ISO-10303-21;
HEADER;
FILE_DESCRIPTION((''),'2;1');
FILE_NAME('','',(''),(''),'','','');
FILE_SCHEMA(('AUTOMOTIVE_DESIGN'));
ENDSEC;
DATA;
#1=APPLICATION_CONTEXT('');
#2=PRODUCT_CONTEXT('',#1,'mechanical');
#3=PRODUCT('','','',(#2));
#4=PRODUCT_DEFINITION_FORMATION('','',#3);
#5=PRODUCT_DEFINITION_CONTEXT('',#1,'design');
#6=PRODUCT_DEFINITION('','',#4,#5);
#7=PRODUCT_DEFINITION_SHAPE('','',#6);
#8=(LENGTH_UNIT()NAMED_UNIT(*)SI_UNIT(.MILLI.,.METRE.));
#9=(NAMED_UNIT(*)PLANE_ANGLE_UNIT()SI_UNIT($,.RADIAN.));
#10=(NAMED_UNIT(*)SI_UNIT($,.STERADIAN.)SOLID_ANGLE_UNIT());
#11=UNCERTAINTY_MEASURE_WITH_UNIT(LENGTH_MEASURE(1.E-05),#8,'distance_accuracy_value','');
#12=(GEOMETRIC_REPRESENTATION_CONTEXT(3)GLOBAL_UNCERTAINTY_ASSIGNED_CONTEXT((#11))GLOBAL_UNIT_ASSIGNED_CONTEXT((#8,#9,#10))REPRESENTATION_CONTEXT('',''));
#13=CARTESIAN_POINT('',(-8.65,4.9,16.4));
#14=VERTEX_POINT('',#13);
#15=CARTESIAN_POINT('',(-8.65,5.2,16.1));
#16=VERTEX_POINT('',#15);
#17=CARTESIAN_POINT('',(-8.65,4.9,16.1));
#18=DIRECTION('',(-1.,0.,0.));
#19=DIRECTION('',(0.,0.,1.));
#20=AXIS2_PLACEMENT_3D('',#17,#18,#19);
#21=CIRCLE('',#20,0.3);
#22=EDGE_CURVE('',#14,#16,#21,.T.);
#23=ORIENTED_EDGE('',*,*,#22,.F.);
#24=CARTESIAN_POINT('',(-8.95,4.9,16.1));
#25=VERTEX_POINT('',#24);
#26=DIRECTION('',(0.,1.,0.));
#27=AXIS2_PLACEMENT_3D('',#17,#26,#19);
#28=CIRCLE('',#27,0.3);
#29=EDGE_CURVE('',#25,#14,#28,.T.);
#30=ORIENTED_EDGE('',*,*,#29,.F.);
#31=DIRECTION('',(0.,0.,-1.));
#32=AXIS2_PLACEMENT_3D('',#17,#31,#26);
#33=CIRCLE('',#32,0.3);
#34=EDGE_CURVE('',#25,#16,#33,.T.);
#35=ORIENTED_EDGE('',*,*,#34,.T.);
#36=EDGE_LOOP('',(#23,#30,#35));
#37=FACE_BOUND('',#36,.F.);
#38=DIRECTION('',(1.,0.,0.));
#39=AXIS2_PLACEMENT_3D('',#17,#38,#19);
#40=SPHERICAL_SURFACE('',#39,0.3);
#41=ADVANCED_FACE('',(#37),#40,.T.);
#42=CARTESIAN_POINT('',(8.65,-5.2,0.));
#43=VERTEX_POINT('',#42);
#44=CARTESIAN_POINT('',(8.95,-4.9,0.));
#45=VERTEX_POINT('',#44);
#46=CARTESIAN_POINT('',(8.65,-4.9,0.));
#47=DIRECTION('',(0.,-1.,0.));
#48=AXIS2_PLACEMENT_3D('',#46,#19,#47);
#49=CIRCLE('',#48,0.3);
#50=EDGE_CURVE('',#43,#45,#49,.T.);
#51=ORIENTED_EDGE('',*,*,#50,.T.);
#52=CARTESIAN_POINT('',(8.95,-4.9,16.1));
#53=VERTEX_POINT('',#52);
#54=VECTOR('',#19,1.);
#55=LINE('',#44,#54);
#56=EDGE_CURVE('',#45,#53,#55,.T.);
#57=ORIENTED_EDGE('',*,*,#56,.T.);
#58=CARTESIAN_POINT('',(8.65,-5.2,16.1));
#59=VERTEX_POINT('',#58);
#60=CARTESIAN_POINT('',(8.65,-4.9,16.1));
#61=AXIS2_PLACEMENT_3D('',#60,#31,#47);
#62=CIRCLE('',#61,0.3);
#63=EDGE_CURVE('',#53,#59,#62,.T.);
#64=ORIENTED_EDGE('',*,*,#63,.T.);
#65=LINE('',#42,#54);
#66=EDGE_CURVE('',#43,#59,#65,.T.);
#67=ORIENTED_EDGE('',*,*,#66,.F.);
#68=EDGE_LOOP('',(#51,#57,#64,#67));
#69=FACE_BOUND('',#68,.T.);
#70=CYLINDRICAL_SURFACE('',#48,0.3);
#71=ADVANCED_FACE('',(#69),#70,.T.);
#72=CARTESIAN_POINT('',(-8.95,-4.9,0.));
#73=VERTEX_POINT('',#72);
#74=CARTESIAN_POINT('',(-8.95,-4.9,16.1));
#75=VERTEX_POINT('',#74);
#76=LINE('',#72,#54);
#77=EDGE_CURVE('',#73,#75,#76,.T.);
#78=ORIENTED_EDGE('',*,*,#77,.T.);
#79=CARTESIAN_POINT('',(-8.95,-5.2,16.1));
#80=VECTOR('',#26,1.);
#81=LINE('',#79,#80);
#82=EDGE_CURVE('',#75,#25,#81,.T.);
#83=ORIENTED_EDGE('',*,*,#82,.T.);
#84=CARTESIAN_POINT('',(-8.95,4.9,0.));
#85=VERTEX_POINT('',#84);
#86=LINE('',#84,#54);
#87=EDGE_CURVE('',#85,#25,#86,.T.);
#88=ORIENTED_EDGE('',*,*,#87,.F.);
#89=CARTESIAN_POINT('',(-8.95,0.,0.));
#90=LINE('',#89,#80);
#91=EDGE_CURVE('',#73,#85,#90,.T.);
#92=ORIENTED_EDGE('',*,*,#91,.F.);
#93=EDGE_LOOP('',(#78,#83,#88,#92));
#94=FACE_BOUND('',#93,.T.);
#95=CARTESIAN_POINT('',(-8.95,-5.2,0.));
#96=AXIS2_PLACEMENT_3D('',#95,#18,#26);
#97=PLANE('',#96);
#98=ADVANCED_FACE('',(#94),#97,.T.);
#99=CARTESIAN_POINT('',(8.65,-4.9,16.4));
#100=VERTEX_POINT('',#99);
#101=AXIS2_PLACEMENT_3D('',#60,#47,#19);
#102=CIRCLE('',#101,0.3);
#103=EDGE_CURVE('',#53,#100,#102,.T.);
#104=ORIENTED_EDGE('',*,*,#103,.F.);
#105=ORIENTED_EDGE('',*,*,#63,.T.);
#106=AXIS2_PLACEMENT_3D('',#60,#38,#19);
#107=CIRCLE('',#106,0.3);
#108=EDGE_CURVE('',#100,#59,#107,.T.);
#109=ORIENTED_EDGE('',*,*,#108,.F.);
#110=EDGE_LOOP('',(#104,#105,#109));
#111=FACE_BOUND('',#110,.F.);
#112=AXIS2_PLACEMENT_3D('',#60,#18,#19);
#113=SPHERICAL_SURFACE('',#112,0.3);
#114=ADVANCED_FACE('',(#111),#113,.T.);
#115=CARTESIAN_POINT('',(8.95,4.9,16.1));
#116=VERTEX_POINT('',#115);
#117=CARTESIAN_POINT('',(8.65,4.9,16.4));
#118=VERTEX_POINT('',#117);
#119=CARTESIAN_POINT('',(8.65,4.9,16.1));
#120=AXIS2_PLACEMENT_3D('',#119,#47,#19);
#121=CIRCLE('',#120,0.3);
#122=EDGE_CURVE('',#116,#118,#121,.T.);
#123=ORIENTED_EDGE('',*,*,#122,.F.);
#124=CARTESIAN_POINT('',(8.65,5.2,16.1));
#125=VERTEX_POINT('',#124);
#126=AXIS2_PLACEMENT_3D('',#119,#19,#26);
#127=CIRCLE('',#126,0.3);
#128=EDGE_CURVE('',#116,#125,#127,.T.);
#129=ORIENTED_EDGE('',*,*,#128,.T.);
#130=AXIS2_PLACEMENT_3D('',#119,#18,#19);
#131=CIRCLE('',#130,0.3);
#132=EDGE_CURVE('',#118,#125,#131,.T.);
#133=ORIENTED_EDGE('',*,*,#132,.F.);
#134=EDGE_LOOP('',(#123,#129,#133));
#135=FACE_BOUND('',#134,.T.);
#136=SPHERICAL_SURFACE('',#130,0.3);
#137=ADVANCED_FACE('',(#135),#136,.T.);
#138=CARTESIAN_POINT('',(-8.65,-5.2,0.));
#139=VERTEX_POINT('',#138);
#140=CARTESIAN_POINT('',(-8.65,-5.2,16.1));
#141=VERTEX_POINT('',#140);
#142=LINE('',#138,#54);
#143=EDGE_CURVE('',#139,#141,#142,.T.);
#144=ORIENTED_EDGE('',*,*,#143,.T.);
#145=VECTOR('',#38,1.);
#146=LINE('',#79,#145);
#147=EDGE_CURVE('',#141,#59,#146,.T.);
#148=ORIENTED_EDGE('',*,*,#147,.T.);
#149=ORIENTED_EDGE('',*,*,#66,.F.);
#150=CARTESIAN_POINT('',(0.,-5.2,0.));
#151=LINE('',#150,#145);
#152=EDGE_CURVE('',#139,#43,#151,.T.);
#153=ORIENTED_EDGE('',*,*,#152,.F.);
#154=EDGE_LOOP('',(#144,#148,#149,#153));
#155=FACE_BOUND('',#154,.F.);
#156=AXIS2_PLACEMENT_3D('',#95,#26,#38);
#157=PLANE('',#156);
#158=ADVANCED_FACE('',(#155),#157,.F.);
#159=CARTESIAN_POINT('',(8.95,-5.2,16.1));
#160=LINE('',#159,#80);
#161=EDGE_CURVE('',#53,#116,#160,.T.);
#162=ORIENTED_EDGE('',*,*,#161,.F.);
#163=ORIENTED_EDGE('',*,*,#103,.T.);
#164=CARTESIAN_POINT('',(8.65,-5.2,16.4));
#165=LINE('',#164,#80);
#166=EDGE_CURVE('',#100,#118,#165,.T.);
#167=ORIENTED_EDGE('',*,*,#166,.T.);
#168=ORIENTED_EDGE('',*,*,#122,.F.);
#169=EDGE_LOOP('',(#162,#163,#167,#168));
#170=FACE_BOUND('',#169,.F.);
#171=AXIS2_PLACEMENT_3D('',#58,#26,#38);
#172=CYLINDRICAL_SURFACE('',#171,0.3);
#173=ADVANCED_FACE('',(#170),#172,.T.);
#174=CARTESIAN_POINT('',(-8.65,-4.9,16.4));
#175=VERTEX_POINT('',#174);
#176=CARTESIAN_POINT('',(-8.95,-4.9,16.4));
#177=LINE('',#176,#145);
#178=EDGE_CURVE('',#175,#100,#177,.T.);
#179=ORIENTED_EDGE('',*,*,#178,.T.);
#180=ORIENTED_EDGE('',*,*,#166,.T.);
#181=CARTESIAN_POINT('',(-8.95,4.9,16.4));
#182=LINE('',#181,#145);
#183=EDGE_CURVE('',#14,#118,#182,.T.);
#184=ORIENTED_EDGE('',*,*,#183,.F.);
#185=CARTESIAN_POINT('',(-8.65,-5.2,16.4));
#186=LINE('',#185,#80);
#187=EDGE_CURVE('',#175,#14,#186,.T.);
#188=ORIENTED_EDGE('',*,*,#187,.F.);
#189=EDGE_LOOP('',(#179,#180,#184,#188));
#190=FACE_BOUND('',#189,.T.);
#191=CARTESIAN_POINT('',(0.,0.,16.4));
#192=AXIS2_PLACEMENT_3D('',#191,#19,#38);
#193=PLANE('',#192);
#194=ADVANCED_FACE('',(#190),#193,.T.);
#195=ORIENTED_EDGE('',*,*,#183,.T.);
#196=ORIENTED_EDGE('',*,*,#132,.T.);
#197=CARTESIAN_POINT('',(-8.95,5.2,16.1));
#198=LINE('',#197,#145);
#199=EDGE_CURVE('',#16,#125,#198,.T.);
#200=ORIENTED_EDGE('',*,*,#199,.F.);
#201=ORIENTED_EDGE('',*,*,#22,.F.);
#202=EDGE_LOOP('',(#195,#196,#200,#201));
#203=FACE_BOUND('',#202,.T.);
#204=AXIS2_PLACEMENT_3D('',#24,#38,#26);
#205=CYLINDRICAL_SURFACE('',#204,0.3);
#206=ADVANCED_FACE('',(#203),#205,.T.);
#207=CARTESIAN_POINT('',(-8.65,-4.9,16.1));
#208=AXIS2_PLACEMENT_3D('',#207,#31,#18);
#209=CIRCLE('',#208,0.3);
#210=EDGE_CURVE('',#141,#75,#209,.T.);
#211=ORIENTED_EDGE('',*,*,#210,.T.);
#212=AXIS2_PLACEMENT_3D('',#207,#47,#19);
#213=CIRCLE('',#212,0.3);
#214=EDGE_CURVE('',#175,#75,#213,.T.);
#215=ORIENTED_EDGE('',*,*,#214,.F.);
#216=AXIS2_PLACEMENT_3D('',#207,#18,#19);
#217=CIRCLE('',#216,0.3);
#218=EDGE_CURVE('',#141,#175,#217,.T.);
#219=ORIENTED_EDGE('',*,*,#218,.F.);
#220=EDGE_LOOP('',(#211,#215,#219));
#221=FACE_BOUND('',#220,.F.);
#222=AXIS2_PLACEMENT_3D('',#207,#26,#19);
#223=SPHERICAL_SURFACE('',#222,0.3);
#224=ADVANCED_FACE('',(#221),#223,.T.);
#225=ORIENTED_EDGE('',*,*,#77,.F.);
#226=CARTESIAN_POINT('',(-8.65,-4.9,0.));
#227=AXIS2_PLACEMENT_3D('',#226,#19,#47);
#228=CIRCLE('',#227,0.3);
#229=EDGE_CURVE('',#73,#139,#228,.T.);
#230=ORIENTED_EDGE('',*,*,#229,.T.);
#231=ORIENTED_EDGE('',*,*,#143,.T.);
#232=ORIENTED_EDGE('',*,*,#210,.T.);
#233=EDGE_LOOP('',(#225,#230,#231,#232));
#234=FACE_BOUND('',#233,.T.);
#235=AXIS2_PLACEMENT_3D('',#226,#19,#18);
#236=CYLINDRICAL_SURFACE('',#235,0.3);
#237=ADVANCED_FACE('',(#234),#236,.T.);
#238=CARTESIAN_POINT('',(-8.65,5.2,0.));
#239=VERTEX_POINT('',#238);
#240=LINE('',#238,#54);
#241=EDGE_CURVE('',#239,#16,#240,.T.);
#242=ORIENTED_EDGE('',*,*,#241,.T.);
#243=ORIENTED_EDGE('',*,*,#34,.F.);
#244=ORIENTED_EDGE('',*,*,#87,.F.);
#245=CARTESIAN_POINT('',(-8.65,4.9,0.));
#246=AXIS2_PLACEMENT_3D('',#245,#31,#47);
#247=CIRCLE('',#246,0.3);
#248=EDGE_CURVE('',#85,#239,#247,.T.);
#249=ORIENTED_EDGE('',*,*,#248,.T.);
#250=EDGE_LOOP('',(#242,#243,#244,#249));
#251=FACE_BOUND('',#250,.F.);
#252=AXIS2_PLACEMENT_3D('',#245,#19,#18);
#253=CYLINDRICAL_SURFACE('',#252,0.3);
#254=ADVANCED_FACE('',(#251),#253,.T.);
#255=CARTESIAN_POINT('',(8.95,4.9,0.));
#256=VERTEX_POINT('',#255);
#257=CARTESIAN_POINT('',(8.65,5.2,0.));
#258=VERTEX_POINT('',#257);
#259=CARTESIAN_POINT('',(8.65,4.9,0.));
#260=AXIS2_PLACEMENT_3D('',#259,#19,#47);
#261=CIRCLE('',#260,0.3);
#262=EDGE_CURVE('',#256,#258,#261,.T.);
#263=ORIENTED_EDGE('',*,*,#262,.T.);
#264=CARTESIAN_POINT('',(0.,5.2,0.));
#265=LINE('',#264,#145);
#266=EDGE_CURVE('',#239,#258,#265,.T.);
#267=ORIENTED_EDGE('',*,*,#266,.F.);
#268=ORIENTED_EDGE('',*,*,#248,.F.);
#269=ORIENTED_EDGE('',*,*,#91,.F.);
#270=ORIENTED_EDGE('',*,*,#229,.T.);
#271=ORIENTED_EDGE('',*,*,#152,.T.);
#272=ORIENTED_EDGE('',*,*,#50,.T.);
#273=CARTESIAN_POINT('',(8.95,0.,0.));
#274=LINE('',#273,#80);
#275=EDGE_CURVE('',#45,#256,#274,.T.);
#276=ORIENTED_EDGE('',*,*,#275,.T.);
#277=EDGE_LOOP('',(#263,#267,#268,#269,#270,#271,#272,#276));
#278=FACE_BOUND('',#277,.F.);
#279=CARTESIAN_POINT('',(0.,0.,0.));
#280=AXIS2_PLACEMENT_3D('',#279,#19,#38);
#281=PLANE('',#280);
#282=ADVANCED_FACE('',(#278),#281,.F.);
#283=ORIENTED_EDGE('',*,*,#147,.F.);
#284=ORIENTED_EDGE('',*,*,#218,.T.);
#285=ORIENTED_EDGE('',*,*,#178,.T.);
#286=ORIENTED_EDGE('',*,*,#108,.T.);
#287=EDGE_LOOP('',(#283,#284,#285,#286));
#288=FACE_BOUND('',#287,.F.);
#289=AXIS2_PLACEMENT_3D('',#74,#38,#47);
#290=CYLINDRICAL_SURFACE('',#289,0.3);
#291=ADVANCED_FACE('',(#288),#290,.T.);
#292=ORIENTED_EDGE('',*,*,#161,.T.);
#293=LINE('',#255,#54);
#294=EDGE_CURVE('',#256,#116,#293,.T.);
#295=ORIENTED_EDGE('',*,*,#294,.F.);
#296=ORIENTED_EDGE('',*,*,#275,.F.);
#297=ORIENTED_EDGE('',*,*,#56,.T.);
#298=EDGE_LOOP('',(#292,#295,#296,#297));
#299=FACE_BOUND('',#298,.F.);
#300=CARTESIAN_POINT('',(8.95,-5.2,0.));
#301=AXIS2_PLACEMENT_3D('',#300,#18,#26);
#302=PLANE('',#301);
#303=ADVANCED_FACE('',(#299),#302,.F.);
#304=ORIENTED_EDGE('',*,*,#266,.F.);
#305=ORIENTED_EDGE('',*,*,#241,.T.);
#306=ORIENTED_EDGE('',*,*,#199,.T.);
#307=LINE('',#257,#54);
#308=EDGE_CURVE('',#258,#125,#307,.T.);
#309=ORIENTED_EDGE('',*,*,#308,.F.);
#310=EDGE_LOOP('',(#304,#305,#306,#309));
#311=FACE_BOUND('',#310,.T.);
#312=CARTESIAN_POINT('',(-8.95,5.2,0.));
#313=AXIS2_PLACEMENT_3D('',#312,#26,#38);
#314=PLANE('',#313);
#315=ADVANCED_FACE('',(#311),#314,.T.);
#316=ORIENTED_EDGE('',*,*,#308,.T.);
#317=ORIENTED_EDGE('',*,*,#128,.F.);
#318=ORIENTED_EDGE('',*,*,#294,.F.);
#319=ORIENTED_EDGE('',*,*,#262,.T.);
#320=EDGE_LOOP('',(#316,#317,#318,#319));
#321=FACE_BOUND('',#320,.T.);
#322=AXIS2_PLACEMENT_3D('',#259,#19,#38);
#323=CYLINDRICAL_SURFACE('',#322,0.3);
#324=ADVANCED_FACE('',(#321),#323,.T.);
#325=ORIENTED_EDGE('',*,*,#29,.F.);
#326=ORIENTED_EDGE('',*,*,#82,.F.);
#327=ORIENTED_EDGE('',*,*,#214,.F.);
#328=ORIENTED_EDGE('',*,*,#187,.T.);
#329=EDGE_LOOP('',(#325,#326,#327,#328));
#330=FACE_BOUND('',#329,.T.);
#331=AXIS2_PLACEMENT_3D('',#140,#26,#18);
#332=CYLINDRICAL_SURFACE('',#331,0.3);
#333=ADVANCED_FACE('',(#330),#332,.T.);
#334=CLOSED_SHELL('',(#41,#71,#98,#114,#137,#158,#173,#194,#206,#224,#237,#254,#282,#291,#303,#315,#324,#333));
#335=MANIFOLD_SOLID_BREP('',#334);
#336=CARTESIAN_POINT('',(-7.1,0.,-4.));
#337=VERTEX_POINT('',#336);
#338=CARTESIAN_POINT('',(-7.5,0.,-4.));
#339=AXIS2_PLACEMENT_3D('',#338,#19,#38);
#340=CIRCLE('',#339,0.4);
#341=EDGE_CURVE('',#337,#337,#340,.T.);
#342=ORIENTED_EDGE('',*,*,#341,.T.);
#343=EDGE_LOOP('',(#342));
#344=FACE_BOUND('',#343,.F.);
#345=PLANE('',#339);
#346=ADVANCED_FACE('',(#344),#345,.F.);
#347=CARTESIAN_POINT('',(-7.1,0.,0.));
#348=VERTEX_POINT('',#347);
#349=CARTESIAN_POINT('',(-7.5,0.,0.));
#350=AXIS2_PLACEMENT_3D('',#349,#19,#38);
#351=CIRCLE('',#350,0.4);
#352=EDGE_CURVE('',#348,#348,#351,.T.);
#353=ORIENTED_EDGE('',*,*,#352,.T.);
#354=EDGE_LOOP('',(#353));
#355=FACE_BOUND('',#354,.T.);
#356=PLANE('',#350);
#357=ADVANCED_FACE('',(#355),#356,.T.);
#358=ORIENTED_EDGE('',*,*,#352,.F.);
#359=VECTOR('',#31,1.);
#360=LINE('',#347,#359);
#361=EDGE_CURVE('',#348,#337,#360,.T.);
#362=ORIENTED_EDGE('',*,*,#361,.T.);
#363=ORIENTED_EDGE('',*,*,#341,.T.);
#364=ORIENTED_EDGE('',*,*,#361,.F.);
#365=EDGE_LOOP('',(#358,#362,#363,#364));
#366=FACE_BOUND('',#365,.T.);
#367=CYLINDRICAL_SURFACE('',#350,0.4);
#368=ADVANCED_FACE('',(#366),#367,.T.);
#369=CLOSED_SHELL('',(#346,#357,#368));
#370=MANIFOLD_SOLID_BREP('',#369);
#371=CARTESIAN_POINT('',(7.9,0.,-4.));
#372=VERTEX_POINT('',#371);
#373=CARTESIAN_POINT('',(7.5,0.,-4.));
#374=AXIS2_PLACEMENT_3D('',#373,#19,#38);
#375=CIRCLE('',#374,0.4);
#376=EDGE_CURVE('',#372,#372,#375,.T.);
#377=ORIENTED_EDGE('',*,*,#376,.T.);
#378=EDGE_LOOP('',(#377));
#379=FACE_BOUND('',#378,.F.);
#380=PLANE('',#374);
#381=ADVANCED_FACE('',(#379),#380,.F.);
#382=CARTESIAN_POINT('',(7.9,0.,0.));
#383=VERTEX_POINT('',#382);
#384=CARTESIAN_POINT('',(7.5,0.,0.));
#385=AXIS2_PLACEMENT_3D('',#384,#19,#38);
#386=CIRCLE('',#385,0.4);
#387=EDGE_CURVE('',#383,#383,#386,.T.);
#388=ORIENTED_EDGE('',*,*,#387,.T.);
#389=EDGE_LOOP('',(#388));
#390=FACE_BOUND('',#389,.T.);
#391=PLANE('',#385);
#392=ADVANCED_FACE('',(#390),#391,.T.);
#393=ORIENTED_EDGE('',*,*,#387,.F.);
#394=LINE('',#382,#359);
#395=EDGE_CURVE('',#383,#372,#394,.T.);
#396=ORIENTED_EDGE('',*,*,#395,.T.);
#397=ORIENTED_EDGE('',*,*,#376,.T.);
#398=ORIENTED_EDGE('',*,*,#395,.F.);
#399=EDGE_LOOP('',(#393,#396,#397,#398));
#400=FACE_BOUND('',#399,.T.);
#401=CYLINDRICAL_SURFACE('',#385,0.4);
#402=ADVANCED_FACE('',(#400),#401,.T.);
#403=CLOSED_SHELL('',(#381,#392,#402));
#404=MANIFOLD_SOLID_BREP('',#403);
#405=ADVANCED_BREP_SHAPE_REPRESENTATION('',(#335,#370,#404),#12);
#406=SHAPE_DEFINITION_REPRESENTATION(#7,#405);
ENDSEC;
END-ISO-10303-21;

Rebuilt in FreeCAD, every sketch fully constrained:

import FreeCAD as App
import Part
import Sketcher
from FreeCAD import Vector


def edges_at(feature, points):
    """Names of the edges that pass closest to the given points."""
    edges = feature.Shape.Edges
    near = lambda p: min(range(len(edges)), key=lambda i: edges[i].distToShape(Part.Vertex(*p))[0])
    return sorted({f"Edge{near(p) + 1}" for p in points})


def add_polygon(sketch, points):
    """Adds a closed chain of lines whose ends are joined by coincident constraints."""
    first, n = sketch.GeometryCount, len(points)
    for a, b in zip(points, points[1:] + points[:1]):
        sketch.addGeometry(Part.LineSegment(App.Vector(*a, 0), App.Vector(*b, 0)), False)
    for i in range(n):
        sketch.addConstraint(Sketcher.Constraint("Coincident", first + i, 2, first + (i + 1) % n, 1))

doc = App.newDocument("Part")
body = doc.addObject("PartDesign::Body", "Body")

# Sketch on XY plane
sketch1 = body.newObject("Sketcher::SketchObject", "Sketch")
sketch1.AttachmentSupport = (doc.getObject("XY_Plane"), [""])
sketch1.MapMode = "FlatFace"
add_polygon(sketch1, [(-8.95, 5.2), (-8.95, -5.2), (8.95, -5.2), (8.95, 5.2)])  # lines 0-3
sketch1.addConstraint(Sketcher.Constraint("Vertical", 0))
sketch1.addConstraint(Sketcher.Constraint("Horizontal", 1))
sketch1.addConstraint(Sketcher.Constraint("Vertical", 2))
sketch1.addConstraint(Sketcher.Constraint("Horizontal", 3))
sketch1.addConstraint(Sketcher.Constraint("Symmetric", 0, 2, 2, 2, -1, 1))
sketch1.addConstraint(Sketcher.Constraint("DistanceX", 1, 1, 1, 2, 17.9))
sketch1.addConstraint(Sketcher.Constraint("DistanceY", 0, 2, 0, 1, 10.4))
pad1 = body.newObject("PartDesign::Pad", "Pad")
pad1.Profile = sketch1
pad1.Length = 16.4
doc.recompute()

fillet = body.newObject("PartDesign::Fillet", "Fillet")
fillet.Base = (pad1, edges_at(pad1, [
    (0, 5.2, 16.4),
    (-8.95, 0, 16.4),
    (0, -5.2, 16.4),
    (8.95, 0, 16.4),
    (8.95, -5.2, 8.2),
    (8.95, 5.2, 8.2),
    (-8.95, 5.2, 8.2),
    (-8.95, -5.2, 8.2),
]))
fillet.Radius = 0.3
body2 = doc.addObject("PartDesign::Body", "Body001")
body2.AllowCompound = True

# Sketch on XY plane
sketch2 = body2.newObject("Sketcher::SketchObject", "Sketch001")
sketch2.AttachmentSupport = (doc.getObject("XY_Plane001"), [""])
sketch2.MapMode = "FlatFace"
sketch2.addGeometry(Part.Circle(Vector(-7.5, 0, 0), Vector(0, 0, 1), 0.4), False)
sketch2.addGeometry(Part.Circle(Vector(7.5, 0, 0), Vector(0, 0, 1), 0.4), False)
sketch2.addConstraint(Sketcher.Constraint("Equal", 0, 1))
sketch2.addConstraint(Sketcher.Constraint("Symmetric", 0, 3, 1, 3, -1, 1))
sketch2.addConstraint(Sketcher.Constraint("PointOnObject", 0, 3, -1))
sketch2.addConstraint(Sketcher.Constraint("Diameter", 0, 0.8))
sketch2.addConstraint(Sketcher.Constraint("DistanceX", 0, 3, 1, 3, 15.0))
pad2 = body2.newObject("PartDesign::Pad", "Pad001")
pad2.Profile = sketch2
pad2.Length = 4
pad2.Reversed = True

doc.recompute()
